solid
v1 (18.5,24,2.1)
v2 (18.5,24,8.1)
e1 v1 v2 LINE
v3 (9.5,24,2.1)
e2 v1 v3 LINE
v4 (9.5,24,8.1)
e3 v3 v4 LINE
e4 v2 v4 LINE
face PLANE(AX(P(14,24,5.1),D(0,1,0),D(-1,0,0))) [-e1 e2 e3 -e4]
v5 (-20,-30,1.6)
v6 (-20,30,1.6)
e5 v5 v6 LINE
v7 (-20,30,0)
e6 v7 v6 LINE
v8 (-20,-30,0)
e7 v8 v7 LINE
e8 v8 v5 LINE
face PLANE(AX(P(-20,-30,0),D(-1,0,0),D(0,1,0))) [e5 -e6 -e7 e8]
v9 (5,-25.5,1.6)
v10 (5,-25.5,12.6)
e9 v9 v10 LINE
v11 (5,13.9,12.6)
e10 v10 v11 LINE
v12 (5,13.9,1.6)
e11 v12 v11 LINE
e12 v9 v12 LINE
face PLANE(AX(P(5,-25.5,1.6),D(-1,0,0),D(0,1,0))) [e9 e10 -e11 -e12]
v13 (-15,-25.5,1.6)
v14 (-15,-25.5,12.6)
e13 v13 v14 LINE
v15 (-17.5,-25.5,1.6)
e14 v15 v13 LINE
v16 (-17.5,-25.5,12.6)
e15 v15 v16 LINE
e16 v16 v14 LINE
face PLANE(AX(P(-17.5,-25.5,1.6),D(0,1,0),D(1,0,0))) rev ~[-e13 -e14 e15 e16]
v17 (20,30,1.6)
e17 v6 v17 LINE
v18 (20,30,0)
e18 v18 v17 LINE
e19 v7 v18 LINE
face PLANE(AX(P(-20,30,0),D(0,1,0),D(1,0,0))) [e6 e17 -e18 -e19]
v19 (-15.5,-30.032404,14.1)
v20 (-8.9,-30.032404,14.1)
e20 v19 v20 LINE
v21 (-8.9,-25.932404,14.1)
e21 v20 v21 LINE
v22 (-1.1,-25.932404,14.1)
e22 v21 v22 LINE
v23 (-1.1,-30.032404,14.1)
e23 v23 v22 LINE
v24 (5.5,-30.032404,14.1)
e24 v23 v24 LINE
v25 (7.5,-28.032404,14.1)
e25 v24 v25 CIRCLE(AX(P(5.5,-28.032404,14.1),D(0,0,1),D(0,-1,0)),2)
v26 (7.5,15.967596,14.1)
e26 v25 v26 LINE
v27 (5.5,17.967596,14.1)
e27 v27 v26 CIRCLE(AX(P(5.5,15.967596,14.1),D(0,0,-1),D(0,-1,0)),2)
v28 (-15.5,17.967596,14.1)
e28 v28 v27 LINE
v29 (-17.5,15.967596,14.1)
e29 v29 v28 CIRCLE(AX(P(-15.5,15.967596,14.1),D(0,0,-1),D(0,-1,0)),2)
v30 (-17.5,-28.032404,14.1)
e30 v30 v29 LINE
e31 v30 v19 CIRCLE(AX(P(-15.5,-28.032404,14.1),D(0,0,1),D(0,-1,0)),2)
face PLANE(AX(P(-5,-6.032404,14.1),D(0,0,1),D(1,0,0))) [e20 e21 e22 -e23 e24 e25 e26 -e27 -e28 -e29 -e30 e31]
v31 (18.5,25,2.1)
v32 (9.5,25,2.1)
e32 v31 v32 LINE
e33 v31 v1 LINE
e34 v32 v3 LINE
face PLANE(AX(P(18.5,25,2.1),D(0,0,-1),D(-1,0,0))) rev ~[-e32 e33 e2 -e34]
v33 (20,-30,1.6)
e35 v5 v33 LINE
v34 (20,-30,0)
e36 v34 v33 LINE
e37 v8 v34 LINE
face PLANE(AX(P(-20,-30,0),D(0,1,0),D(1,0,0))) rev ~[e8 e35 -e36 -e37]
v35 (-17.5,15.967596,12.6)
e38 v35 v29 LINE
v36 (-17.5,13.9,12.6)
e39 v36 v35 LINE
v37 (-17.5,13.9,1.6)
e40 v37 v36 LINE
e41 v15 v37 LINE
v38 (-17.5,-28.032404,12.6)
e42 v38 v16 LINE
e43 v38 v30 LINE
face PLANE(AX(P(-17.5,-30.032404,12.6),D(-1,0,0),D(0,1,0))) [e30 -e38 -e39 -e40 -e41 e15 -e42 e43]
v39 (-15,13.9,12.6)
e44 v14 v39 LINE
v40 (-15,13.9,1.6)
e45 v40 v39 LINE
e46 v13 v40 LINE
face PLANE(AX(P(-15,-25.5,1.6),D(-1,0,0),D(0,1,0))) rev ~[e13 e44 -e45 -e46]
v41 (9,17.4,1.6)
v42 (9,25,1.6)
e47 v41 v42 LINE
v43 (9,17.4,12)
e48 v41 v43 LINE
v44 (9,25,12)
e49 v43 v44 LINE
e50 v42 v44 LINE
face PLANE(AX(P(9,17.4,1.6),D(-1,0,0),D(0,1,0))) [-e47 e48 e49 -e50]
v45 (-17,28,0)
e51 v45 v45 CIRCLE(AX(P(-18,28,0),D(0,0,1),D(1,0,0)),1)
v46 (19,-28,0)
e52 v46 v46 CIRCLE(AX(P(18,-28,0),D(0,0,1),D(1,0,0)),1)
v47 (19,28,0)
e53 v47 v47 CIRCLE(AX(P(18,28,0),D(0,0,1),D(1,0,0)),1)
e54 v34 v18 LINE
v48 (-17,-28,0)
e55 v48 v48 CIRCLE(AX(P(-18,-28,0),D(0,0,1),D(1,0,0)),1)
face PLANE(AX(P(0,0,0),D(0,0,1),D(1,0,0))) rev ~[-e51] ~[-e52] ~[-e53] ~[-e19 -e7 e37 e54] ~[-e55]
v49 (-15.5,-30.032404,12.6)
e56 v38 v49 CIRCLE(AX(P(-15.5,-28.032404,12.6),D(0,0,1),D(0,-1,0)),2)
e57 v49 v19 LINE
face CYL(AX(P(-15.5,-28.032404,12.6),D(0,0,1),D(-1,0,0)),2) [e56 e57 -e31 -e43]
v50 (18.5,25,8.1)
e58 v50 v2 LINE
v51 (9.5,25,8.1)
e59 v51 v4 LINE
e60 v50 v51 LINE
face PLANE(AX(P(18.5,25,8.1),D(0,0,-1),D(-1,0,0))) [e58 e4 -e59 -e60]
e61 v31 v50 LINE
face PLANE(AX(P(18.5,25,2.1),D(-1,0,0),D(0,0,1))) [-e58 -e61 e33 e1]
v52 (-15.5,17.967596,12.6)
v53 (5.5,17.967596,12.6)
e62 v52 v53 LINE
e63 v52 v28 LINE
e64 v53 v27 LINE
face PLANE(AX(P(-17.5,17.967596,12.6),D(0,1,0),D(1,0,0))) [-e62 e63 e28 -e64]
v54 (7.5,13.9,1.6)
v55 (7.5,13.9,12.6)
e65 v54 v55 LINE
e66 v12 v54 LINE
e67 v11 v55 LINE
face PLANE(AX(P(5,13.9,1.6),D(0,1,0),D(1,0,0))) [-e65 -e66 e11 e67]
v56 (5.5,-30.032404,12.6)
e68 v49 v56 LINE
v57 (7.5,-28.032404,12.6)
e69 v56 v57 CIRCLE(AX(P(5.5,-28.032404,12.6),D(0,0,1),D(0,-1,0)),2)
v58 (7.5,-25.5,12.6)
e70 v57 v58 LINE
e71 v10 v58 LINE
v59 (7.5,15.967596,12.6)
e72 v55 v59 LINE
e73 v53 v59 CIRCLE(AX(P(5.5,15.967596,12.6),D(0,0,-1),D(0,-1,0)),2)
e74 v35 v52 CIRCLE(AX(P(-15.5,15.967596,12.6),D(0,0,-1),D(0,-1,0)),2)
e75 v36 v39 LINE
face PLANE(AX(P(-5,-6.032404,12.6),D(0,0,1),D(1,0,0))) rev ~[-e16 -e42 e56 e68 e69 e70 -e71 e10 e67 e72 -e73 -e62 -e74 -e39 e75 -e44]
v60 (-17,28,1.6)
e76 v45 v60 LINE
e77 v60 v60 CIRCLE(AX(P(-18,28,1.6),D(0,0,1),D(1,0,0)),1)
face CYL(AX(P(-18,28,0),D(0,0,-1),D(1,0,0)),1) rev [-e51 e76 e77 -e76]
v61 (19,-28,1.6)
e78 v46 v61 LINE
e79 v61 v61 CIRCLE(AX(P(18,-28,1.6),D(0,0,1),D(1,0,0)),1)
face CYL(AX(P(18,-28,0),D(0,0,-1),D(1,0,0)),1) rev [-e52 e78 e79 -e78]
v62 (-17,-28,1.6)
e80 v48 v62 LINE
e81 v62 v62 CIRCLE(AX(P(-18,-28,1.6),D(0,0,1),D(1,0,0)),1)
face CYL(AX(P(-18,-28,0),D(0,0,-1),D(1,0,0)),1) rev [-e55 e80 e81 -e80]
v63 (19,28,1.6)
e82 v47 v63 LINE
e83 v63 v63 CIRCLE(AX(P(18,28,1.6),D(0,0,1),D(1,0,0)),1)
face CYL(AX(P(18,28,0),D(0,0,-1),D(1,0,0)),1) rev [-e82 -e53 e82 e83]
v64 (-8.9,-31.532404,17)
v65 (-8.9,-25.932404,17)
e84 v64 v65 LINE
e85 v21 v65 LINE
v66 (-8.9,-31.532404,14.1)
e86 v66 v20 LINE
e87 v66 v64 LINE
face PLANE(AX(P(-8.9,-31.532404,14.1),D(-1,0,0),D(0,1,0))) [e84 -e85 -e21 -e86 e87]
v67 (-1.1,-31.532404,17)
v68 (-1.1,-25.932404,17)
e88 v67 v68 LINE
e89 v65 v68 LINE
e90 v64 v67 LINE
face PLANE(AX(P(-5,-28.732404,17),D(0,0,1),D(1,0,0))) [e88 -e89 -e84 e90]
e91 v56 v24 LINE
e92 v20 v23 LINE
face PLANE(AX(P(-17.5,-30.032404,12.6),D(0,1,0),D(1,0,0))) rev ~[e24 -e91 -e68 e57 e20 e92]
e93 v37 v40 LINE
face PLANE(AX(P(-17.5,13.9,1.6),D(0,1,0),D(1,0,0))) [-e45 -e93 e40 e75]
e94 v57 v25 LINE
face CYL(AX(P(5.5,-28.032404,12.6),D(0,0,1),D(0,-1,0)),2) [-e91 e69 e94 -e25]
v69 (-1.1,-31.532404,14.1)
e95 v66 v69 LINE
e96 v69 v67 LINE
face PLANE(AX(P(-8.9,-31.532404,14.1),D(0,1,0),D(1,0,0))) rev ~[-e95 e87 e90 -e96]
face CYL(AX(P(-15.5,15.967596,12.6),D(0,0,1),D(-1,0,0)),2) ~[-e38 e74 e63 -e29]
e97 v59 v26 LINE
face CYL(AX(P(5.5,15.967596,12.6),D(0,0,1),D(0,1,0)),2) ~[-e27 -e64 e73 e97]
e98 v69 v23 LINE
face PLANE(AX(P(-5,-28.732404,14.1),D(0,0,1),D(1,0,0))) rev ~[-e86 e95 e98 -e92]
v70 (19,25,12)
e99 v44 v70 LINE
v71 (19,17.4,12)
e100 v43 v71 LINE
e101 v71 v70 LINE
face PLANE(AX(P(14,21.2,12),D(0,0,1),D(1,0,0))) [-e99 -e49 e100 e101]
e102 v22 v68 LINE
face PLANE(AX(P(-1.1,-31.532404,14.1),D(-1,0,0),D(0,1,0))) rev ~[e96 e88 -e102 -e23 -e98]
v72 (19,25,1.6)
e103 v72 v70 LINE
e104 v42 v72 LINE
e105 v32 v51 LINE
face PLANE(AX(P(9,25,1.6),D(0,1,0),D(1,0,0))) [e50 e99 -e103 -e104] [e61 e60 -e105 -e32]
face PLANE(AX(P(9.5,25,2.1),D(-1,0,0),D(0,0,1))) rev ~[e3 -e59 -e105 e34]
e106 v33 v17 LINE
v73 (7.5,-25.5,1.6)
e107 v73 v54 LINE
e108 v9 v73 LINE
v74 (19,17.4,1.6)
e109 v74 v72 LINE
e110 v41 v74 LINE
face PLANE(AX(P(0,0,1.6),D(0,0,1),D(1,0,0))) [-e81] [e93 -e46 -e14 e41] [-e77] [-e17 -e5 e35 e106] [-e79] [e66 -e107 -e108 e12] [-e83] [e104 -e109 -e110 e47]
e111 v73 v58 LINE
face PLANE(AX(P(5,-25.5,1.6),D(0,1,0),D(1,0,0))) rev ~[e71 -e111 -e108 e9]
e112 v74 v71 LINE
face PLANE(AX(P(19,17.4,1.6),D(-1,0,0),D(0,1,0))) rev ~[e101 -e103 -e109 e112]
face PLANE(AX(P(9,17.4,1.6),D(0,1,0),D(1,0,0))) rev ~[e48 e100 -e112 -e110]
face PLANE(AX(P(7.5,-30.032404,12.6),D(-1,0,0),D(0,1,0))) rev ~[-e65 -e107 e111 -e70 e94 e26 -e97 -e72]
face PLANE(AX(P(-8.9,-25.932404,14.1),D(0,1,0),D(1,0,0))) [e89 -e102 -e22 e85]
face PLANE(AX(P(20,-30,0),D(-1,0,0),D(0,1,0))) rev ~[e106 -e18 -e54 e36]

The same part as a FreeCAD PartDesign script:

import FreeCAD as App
import Part
import Sketcher
Q = App.Units.Quantity


def edges_at(feature, points):
    """Names of the edges that pass closest to the given points."""
    edges = feature.Shape.Edges
    near = lambda p: min(range(len(edges)), key=lambda i: edges[i].distToShape(Part.Vertex(*p))[0])
    return sorted({f"Edge{near(p) + 1}" for p in points})


def add_polygon(sketch, points):
    """Adds a closed chain of lines whose ends are joined by coincident constraints."""
    first, n = sketch.GeometryCount, len(points)
    for a, b in zip(points, points[1:] + points[:1]):
        sketch.addGeometry(Part.LineSegment(App.Vector(*a, 0), App.Vector(*b, 0)), False)
    for i in range(n):
        sketch.addConstraint(Sketcher.Constraint("Coincident", first + i, 2, first + (i + 1) % n, 1))

doc = App.newDocument("Part")
body = doc.addObject("PartDesign::Body", "Body")

sketch1 = body.newObject("Sketcher::SketchObject", "Sketch")
sketch1.AttachmentSupport = (doc.getObject("XY_Plane"), [""])
sketch1.MapMode = "FlatFace"
add_polygon(sketch1, [(-20, 30), (-20, -30), (20, -30), (20, 30)])
sketch1.addGeometry(Part.Circle(App.Vector(-18, -28, 0), App.Vector(0, 0, 1), 1), False)
sketch1.addGeometry(Part.Circle(App.Vector(18, -28, 0), App.Vector(0, 0, 1), 1), False)
sketch1.addGeometry(Part.Circle(App.Vector(-18, 28, 0), App.Vector(0, 0, 1), 1), False)
sketch1.addGeometry(Part.Circle(App.Vector(18, 28, 0), App.Vector(0, 0, 1), 1), False)
sketch1.addConstraint(Sketcher.Constraint("Vertical", 0))
sketch1.addConstraint(Sketcher.Constraint("Horizontal", 1))
sketch1.addConstraint(Sketcher.Constraint("Vertical", 2))
sketch1.addConstraint(Sketcher.Constraint("Horizontal", 3))
sketch1.addConstraint(Sketcher.Constraint("Equal", 4, 5))
sketch1.addConstraint(Sketcher.Constraint("Equal", 5, 6))
sketch1.addConstraint(Sketcher.Constraint("Equal", 6, 7))
sketch1.addConstraint(Sketcher.Constraint("Symmetric", 5, 3, 6, 3, -1, 1))
sketch1.addConstraint(Sketcher.Constraint("Symmetric", 4, 3, 7, 3, -1, 1))
sketch1.addConstraint(Sketcher.Constraint("Symmetric", 0, 2, 2, 2, -1, 1))
sketch1.addConstraint(Sketcher.Constraint("Symmetric", 4, 3, 5, 3, -2))
sketch1.addConstraint(Sketcher.Constraint("Diameter", 4, Q("2 mm")))
sketch1.addConstraint(Sketcher.Constraint("DistanceX", 1, 1, 1, 2, Q("40 mm")))
sketch1.addConstraint(Sketcher.Constraint("DistanceY", 0, 2, 0, 1, Q("60 mm")))
sketch1.addConstraint(Sketcher.Constraint("DistanceX", 4, 3, -1, 1, Q("18 mm")))
sketch1.addConstraint(Sketcher.Constraint("DistanceY", 4, 3, -1, 1, Q("28 mm")))
pad1 = body.newObject("PartDesign::Pad", "Pad")
pad1.Profile = sketch1
pad1.Length = 1.6

sketch2 = body.newObject("Sketcher::SketchObject", "Sketch001")
sketch2.AttachmentSupport = (doc.getObject("XY_Plane"), [""])
sketch2.MapMode = "FlatFace"
sketch2.AttachmentOffset = App.Placement(App.Vector(0, 0, 1.6), App.Rotation())
add_polygon(sketch2, [(9, 25), (9, 17.4), (19, 17.4), (19, 25)])
sketch2.addConstraint(Sketcher.Constraint("Vertical", 0))
sketch2.addConstraint(Sketcher.Constraint("Horizontal", 1))
sketch2.addConstraint(Sketcher.Constraint("Vertical", 2))
sketch2.addConstraint(Sketcher.Constraint("Horizontal", 3))
sketch2.addConstraint(Sketcher.Constraint("DistanceX", 1, 1, 1, 2, Q("10 mm")))
sketch2.addConstraint(Sketcher.Constraint("DistanceY", 0, 2, 0, 1, Q("7.6 mm")))
sketch2.addConstraint(Sketcher.Constraint("DistanceX", -1, 1, 0, 2, Q("9 mm")))
sketch2.addConstraint(Sketcher.Constraint("DistanceY", -1, 1, 2, 2, Q("25 mm")))
pad2 = body.newObject("PartDesign::Pad", "Pad001")
pad2.Profile = sketch2
pad2.Length = 10.4

sketch3 = body.newObject("Sketcher::SketchObject", "Sketch002")
sketch3.AttachmentSupport = (doc.getObject("XZ_Plane"), [""])
sketch3.MapMode = "FlatFace"
sketch3.AttachmentOffset = App.Placement(App.Vector(0, 0, -25), App.Rotation())
add_polygon(sketch3, [(18.5, 8.1), (18.5, 2.1), (9.5, 2.1), (9.5, 8.1)])
sketch3.addConstraint(Sketcher.Constraint("Vertical", 0))
sketch3.addConstraint(Sketcher.Constraint("Horizontal", 1))
sketch3.addConstraint(Sketcher.Constraint("Vertical", 2))
sketch3.addConstraint(Sketcher.Constraint("Horizontal", 3))
sketch3.addConstraint(Sketcher.Constraint("DistanceX", 1, 2, 1, 1, Q("9 mm")))
sketch3.addConstraint(Sketcher.Constraint("DistanceY", 0, 2, 0, 1, Q("6 mm")))
sketch3.addConstraint(Sketcher.Constraint("DistanceX", -1, 1, 0, 2, Q("18.5 mm")))
sketch3.addConstraint(Sketcher.Constraint("DistanceY", -1, 1, 0, 2, Q("2.1 mm")))
pocket1 = body.newObject("PartDesign::Pocket", "Pocket")
pocket1.Profile = sketch3
pocket1.Length = 1
pocket1.Reversed = True

sketch4 = body.newObject("Sketcher::SketchObject", "Sketch003")
sketch4.AttachmentSupport = (doc.getObject("XY_Plane"), [""])
sketch4.MapMode = "FlatFace"
sketch4.AttachmentOffset = App.Placement(App.Vector(0, 0, 1.6), App.Rotation())
add_polygon(sketch4, [(5, 13.9), (5, -25.5), (7.5, -25.5), (7.5, 13.9)])
add_polygon(sketch4, [(-17.5, 13.9), (-17.5, -25.5), (-15, -25.5), (-15, 13.9)])
sketch4.addConstraint(Sketcher.Constraint("Vertical", 0))
sketch4.addConstraint(Sketcher.Constraint("Horizontal", 1))
sketch4.addConstraint(Sketcher.Constraint("Vertical", 2))
sketch4.addConstraint(Sketcher.Constraint("Horizontal", 3))
sketch4.addConstraint(Sketcher.Constraint("Vertical", 4))
sketch4.addConstraint(Sketcher.Constraint("Horizontal", 5))
sketch4.addConstraint(Sketcher.Constraint("Vertical", 6))
sketch4.addConstraint(Sketcher.Constraint("Horizontal", 7))
sketch4.addConstraint(Sketcher.Constraint("Horizontal", 1, 2, 4, 2))
sketch4.addConstraint(Sketcher.Constraint("Horizontal", 3, 2, 6, 2))
sketch4.addConstraint(Sketcher.Constraint("Equal", 3, 5))
sketch4.addConstraint(Sketcher.Constraint("DistanceX", 1, 1, 1, 2, Q("2.5 mm")))
sketch4.addConstraint(Sketcher.Constraint("DistanceY", 0, 2, 0, 1, Q("39.4 mm")))
sketch4.addConstraint(Sketcher.Constraint("DistanceX", -1, 1, 0, 2, Q("5 mm")))
sketch4.addConstraint(Sketcher.Constraint("DistanceX", 5, 2, -1, 1, Q("15 mm")))
sketch4.addConstraint(Sketcher.Constraint("DistanceY", 0, 2, -1, 1, Q("25.5 mm")))
pad3 = body.newObject("PartDesign::Pad", "Pad002")
pad3.Profile = sketch4
pad3.Length = 11

sketch5 = body.newObject("Sketcher::SketchObject", "Sketch004")
sketch5.AttachmentSupport = (doc.getObject("XY_Plane"), [""])
sketch5.MapMode = "FlatFace"
sketch5.AttachmentOffset = App.Placement(App.Vector(0, 0, 12.6), App.Rotation())
add_polygon(sketch5, [(-17.5, 17.967596), (-17.5, -30.032404), (7.5, -30.032404), (7.5, 17.967596)])
sketch5.addConstraint(Sketcher.Constraint("Vertical", 0))
sketch5.addConstraint(Sketcher.Constraint("Horizontal", 1))
sketch5.addConstraint(Sketcher.Constraint("Vertical", 2))
sketch5.addConstraint(Sketcher.Constraint("Horizontal", 3))
sketch5.addConstraint(Sketcher.Constraint("DistanceX", 1, 1, 1, 2, Q("25 mm")))
sketch5.addConstraint(Sketcher.Constraint("DistanceY", 0, 2, 0, 1, Q("48 mm")))
sketch5.addConstraint(Sketcher.Constraint("DistanceX", 0, 2, -1, 1, Q("17.5 mm")))
sketch5.addConstraint(Sketcher.Constraint("DistanceY", 0, 2, -1, 1, Q("30.032404 mm")))
pad4 = body.newObject("PartDesign::Pad", "Pad003")
pad4.Profile = sketch5
pad4.Length = 1.5
doc.recompute()

fillet = body.newObject("PartDesign::Fillet", "Fillet")
fillet.Base = (pad4, edges_at(pad4, [
    (-17.5, -30.032, 13.35),
    (7.5, -30.032, 13.35),
    (7.5, 17.968, 13.35),
    (-17.5, 17.968, 13.35),
]))
fillet.Radius = 2

sketch6 = body.newObject("Sketcher::SketchObject", "Sketch005")
sketch6.AttachmentSupport = (doc.getObject("XY_Plane"), [""])
sketch6.MapMode = "FlatFace"
sketch6.AttachmentOffset = App.Placement(App.Vector(0, 0, 14.1), App.Rotation())
add_polygon(sketch6, [(-8.9, -25.932404), (-8.9, -31.532404), (-1.1, -31.532404), (-1.1, -25.932404)])
sketch6.addConstraint(Sketcher.Constraint("Vertical", 0))
sketch6.addConstraint(Sketcher.Constraint("Horizontal", 1))
sketch6.addConstraint(Sketcher.Constraint("Vertical", 2))
sketch6.addConstraint(Sketcher.Constraint("Horizontal", 3))
sketch6.addConstraint(Sketcher.Constraint("DistanceX", 1, 1, 1, 2, Q("7.8 mm")))
sketch6.addConstraint(Sketcher.Constraint("DistanceY", 0, 2, 0, 1, Q("5.6 mm")))
sketch6.addConstraint(Sketcher.Constraint("DistanceX", 0, 2, -1, 1, Q("8.9 mm")))
sketch6.addConstraint(Sketcher.Constraint("DistanceY", 0, 2, -1, 1, Q("31.532404 mm")))
pad5 = body.newObject("PartDesign::Pad", "Pad004")
pad5.Profile = sketch6
pad5.Length = 2.9

doc.recompute()
